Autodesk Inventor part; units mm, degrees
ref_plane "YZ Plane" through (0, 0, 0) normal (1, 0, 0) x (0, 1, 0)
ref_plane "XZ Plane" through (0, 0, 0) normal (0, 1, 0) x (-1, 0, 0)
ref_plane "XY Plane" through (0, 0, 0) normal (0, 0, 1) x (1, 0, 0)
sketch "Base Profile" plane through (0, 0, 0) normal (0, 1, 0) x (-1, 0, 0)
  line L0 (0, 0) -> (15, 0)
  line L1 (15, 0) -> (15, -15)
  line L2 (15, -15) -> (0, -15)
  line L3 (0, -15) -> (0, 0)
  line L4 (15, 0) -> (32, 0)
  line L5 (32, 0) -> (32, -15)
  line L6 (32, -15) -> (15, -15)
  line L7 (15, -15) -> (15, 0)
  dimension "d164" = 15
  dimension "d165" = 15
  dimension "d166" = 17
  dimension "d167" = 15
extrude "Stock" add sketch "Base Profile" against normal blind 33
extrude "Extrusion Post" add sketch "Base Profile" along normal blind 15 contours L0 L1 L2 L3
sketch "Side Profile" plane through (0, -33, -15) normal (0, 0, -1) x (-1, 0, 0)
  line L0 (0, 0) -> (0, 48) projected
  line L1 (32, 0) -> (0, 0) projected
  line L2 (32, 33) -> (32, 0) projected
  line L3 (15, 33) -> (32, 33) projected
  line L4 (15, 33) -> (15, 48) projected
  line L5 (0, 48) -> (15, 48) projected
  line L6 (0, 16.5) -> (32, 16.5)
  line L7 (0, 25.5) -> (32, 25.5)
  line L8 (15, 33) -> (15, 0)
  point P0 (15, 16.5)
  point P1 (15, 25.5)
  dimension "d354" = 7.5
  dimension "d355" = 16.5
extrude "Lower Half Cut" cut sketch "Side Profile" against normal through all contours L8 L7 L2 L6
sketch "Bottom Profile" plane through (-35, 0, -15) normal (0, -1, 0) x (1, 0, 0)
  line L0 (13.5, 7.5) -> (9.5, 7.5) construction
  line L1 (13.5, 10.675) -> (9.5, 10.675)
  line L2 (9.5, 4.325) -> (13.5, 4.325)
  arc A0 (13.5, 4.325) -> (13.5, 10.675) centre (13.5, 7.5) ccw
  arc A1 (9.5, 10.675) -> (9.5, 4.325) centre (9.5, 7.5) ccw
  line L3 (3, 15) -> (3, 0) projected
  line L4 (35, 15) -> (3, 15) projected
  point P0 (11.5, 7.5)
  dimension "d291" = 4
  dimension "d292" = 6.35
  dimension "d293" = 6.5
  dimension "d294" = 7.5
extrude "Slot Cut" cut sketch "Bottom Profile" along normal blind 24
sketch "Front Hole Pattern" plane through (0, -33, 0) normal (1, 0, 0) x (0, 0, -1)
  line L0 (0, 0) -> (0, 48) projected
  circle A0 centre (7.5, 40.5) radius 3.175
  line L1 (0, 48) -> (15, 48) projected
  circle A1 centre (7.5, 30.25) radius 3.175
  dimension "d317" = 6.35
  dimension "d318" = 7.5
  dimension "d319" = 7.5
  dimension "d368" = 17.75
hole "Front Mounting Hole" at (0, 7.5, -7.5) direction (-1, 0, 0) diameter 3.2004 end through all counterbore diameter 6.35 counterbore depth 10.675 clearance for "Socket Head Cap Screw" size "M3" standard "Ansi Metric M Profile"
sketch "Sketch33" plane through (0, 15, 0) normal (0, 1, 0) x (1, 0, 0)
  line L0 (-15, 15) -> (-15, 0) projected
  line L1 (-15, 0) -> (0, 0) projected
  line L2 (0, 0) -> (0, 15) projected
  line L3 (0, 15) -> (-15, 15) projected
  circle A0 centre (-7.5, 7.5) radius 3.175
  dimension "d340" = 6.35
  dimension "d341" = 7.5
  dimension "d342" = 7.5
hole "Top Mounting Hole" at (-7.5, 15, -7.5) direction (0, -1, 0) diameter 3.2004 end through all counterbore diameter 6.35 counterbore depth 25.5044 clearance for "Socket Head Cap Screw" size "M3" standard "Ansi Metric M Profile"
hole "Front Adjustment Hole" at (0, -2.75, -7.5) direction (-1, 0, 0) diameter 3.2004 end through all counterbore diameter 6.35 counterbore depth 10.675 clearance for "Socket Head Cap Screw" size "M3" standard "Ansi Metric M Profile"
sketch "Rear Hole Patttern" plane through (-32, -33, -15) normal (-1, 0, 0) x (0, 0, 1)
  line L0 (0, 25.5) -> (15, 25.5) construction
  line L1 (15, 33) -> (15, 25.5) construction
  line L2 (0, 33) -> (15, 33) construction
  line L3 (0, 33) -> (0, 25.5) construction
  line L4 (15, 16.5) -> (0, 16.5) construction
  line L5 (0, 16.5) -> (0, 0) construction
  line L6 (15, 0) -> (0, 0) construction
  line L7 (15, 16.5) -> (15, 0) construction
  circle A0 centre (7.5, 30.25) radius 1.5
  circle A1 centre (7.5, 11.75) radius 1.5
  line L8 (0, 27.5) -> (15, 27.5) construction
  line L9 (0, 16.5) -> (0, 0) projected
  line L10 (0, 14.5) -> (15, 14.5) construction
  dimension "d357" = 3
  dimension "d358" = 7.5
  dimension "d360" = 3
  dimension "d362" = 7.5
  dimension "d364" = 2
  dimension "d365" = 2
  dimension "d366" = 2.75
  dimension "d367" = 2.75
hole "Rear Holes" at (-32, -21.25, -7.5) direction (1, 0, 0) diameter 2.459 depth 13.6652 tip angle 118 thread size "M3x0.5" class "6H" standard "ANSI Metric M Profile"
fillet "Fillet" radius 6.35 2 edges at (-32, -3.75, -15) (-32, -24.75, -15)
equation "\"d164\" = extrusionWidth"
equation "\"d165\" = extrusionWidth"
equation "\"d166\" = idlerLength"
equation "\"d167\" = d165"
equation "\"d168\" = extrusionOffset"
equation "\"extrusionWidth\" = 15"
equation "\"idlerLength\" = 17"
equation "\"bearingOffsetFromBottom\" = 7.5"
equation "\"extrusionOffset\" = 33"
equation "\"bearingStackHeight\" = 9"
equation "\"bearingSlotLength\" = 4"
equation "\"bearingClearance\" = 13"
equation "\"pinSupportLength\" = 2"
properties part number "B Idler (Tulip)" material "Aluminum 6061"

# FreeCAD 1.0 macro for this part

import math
import FreeCAD as App
import Part
import Sketcher
from FreeCAD import Vector
Q = App.Units.Quantity


def edges_at(feature, points):
    """Names of the edges that pass closest to the given points."""
    edges = feature.Shape.Edges
    near = lambda p: min(range(len(edges)), key=lambda i: edges[i].distToShape(Part.Vertex(*p))[0])
    return sorted({f"Edge{near(p) + 1}" for p in points})


def add_polygon(sketch, points):
    """Adds a closed chain of lines whose ends are joined by coincident constraints."""
    first, n = sketch.GeometryCount, len(points)
    for a, b in zip(points, points[1:] + points[:1]):
        sketch.addGeometry(Part.LineSegment(App.Vector(*a, 0), App.Vector(*b, 0)), False)
    for i in range(n):
        sketch.addConstraint(Sketcher.Constraint("Coincident", first + i, 2, first + (i + 1) % n, 1))

doc = App.newDocument("Part")
body = doc.addObject("PartDesign::Body", "Body")

# Sketch on XZ plane
sketch1 = body.newObject("Sketcher::SketchObject", "Sketch")
sketch1.AttachmentSupport = (doc.getObject("XZ_Plane"), [""])
sketch1.MapMode = "FlatFace"
add_polygon(sketch1, [(0, 0), (0, -15), (-32, -15), (-32, 0)])  # lines 0-3
sketch1.addConstraint([
    Sketcher.Constraint("Vertical", 0),
    Sketcher.Constraint("Horizontal", 1),
    Sketcher.Constraint("Vertical", 2),
    Sketcher.Constraint("Horizontal", 3),
    Sketcher.Constraint("Coincident", 3, 2, -1, 1),
    Sketcher.Constraint("DistanceY", 0, 2, 0, 1, Q("15 mm")),
    Sketcher.Constraint("DistanceX", 1, 2, 1, 1, Q("32 mm")),
])
pad1 = body.newObject("PartDesign::Pad", "Pad")
pad1.Profile = sketch1
pad1.Length = 33

# Sketch on XZ plane
sketch2 = body.newObject("Sketcher::SketchObject", "Sketch001")
sketch2.AttachmentSupport = (doc.getObject("XZ_Plane"), [""])
sketch2.MapMode = "FlatFace"
add_polygon(sketch2, [(-15, 0), (0, 0), (0, -15), (-15, -15)])  # lines 0-3
sketch2.addConstraint([
    Sketcher.Constraint("Horizontal", 0),
    Sketcher.Constraint("Vertical", 1),
    Sketcher.Constraint("Horizontal", 2),
    Sketcher.Constraint("Vertical", 3),
    Sketcher.Constraint("Coincident", 0, 2, -1, 1),
    Sketcher.Constraint("Equal", 2, 1),
    Sketcher.Constraint("DistanceX", 0, 1, 0, 2, Q("15 mm")),
])
pad2 = body.newObject("PartDesign::Pad", "Pad001")
pad2.Profile = sketch2
pad2.Length = 15
pad2.Reversed = True

# Sketch on XY plane
sketch3 = body.newObject("Sketcher::SketchObject", "Sketch002")
sketch3.AttachmentSupport = (doc.getObject("XY_Plane"), [""])
sketch3.MapMode = "FlatFace"
sketch3.AttachmentOffset = App.Placement(Vector(0, 0, -15), App.Rotation())
add_polygon(sketch3, [(-15, -8), (-15, -16), (-32, -16), (-32, -8)])  # lines 0-3
sketch3.addConstraint([
    Sketcher.Constraint("Vertical", 0),
    Sketcher.Constraint("Horizontal", 1),
    Sketcher.Constraint("Vertical", 2),
    Sketcher.Constraint("Horizontal", 3),
    Sketcher.Constraint("DistanceY", 0, 2, -1, 1, Q("16.5 mm")),
    Sketcher.Constraint("DistanceY", 2, 2, -1, 1, Q("7.5 mm")),
    Sketcher.Constraint("DistanceX", 1, 2, 1, 1, Q("17 mm")),
    Sketcher.Constraint("DistanceX", 0, 2, -1, 1, Q("15 mm")),
])
pocket1 = body.newObject("PartDesign::Pocket", "Pocket")
pocket1.Profile = sketch3
pocket1.Type = "ThroughAll"
pocket1.Reversed = True

# Sketch on XZ plane
sketch4 = body.newObject("Sketcher::SketchObject", "Sketch003")
sketch4.AttachmentSupport = (doc.getObject("XZ_Plane"), [""])
sketch4.MapMode = "FlatFace"
sketch4.addGeometry([
    Part.ArcOfCircle(Part.Circle(Vector(-21.5, -7.5, 0), Vector(0, 0, 1), 3.2), math.radians(-90), math.radians(90)),
    Part.LineSegment(Vector(-21.5, -4.3, 0), Vector(-25.5, -4.3, 0)),
    Part.ArcOfCircle(Part.Circle(Vector(-25.5, -7.5, 0), Vector(0, 0, 1), 3.2), math.radians(90), math.radians(270)),
    Part.LineSegment(Vector(-25.5, -10.7, 0), Vector(-21.5, -10.7, 0)),
], False)
sketch4.addConstraint([
    Sketcher.Constraint("Tangent", 0, 2, 1, 1),
    Sketcher.Constraint("Tangent", 1, 2, 2, 1),
    Sketcher.Constraint("Tangent", 2, 2, 3, 1),
    Sketcher.Constraint("Tangent", 3, 2, 0, 1),
    Sketcher.Constraint("Horizontal", 1),
    Sketcher.Constraint("Horizontal", 3),
    Sketcher.Constraint("DistanceX", 1, 2, 1, 1, Q("4 mm")),
    Sketcher.Constraint("Radius", 0, Q("3.175 mm")),
    Sketcher.Constraint("DistanceY", 0, 3, -1, 1, Q("7.5 mm")),
    Sketcher.Constraint("DistanceX", 0, 3, -1, 1, Q("21.5 mm")),
])
pocket2 = body.newObject("PartDesign::Pocket", "Pocket001")
pocket2.Profile = sketch4
pocket2.Length = 24
pocket2.Reversed = True

# Sketch on YZ plane
sketch5 = body.newObject("Sketcher::SketchObject", "Sketch004")
sketch5.AttachmentSupport = (doc.getObject("YZ_Plane"), [""])
sketch5.MapMode = "FlatFace"
sketch5.addGeometry(Part.Circle(Vector(7.5, -7.5, 0), Vector(0, 0, 1), 1.6), False)
sketch5.addConstraint([
    Sketcher.Constraint("Diameter", 0, Q("3.2004 mm")),
    Sketcher.Constraint("DistanceX", -1, 1, 0, 3, Q("7.5 mm")),
    Sketcher.Constraint("DistanceY", 0, 3, -1, 1, Q("7.5 mm")),
])
doc.recompute()
hole = body.newObject("PartDesign::Hole", "Hole")
hole.Profile = sketch5
hole.ThreadType = "None"
hole.Diameter = 3.2004
hole.DepthType = "ThroughAll"
hole.HoleCutType = "Counterbore"
hole.HoleCutDiameter = 6.35
hole.HoleCutDepth = 10.675

# Sketch on XZ plane
sketch6 = body.newObject("Sketcher::SketchObject", "Sketch005")
sketch6.AttachmentSupport = (doc.getObject("XZ_Plane"), [""])
sketch6.MapMode = "FlatFace"
sketch6.AttachmentOffset = App.Placement(Vector(0, 0, -15), App.Rotation())
sketch6.addGeometry(Part.Circle(Vector(-7.5, -7.5, 0), Vector(0, 0, 1), 1.6), False)
sketch6.addConstraint([
    Sketcher.Constraint("Diameter", 0, Q("3.2004 mm")),
    Sketcher.Constraint("DistanceX", 0, 3, -1, 1, Q("7.5 mm")),
    Sketcher.Constraint("DistanceY", 0, 3, -1, 1, Q("7.5 mm")),
])
doc.recompute()
hole2 = body.newObject("PartDesign::Hole", "Hole001")
hole2.Profile = sketch6
hole2.ThreadType = "None"
hole2.Diameter = 3.2004
hole2.DepthType = "ThroughAll"
hole2.HoleCutType = "Counterbore"
hole2.HoleCutDiameter = 6.35
hole2.HoleCutDepth = 25.5044
hole2.Reversed = True

# Sketch on YZ plane
sketch7 = body.newObject("Sketcher::SketchObject", "Sketch006")
sketch7.AttachmentSupport = (doc.getObject("YZ_Plane"), [""])
sketch7.MapMode = "FlatFace"
sketch7.addGeometry(Part.Circle(Vector(-2.8, -7.5, 0), Vector(0, 0, 1), 1.6), False)
sketch7.addConstraint([
    Sketcher.Constraint("Diameter", 0, Q("3.2004 mm")),
    Sketcher.Constraint("DistanceY", 0, 3, -1, 1, Q("7.5 mm")),
    Sketcher.Constraint("DistanceX", 0, 3, -1, 1, Q("2.75 mm")),
])
doc.recompute()
hole3 = body.newObject("PartDesign::Hole", "Hole002")
hole3.Profile = sketch7
hole3.ThreadType = "None"
hole3.Diameter = 3.2004
hole3.DepthType = "ThroughAll"
hole3.HoleCutType = "Counterbore"
hole3.HoleCutDiameter = 6.35
hole3.HoleCutDepth = 10.675

# Sketch on YZ plane
sketch8 = body.newObject("Sketcher::SketchObject", "Sketch007")
sketch8.AttachmentSupport = (doc.getObject("YZ_Plane"), [""])
sketch8.MapMode = "FlatFace"
sketch8.AttachmentOffset = App.Placement(Vector(0, 0, -32), App.Rotation())
sketch8.addGeometry(Part.Circle(Vector(-21.2, -7.5, 0), Vector(0, 0, 1), 1.2), False)
sketch8.addConstraint([
    Sketcher.Constraint("Diameter", 0, Q("2.459 mm")),
    Sketcher.Constraint("DistanceY", 0, 3, -1, 1, Q("7.5 mm")),
    Sketcher.Constraint("DistanceX", 0, 3, -1, 1, Q("21.25 mm")),
])
doc.recompute()
hole4 = body.newObject("PartDesign::Hole", "Hole003")
hole4.Profile = sketch8
hole4.ThreadType = "None"
hole4.Diameter = 2.459
hole4.DepthType = "Dimension"
hole4.Depth = 13.6652
hole4.DrillPoint = "Angled"
hole4.DrillPointAngle = 118
hole4.Reversed = True
doc.recompute()

fillet = body.newObject("PartDesign::Fillet", "Fillet")
fillet.Base = (hole4, edges_at(hole4, [(-32, -3.75, -15), (-32, -24.75, -15)]))
fillet.Radius = 6.35

doc.recompute()
